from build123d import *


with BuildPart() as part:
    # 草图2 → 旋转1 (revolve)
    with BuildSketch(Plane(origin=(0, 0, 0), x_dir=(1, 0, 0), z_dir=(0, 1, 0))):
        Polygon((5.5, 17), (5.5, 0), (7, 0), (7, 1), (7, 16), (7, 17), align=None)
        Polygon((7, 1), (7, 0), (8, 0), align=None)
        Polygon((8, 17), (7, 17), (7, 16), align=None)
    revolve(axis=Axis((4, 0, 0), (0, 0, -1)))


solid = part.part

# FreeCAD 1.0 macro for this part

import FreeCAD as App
import Part
import Sketcher
Q = App.Units.Quantity

doc = App.newDocument("Part")
body = doc.addObject("PartDesign::Body", "Body")

# Sketch on XZ plane
sketch1 = doc.addObject("Sketcher::SketchObject", "Sketch")
body.addObject(sketch1)
sketch1.AttachmentSupport = (doc.XZ_Plane, [""])
sketch1.MapMode = "FlatFace"
sketch1.addGeometry([
    Part.LineSegment(App.Vector(5.5, -17, 0), App.Vector(5.5, 0, 0)),  # 0
    Part.LineSegment(App.Vector(5.5, 0, 0), App.Vector(8, 0, 0)),  # 1
    Part.LineSegment(App.Vector(8, 0, 0), App.Vector(7, -1, 0)),  # 2
    Part.LineSegment(App.Vector(7, -1, 0), App.Vector(7, -16, 0)),  # 3
    Part.LineSegment(App.Vector(7, -16, 0), App.Vector(8, -17, 0)),  # 4
    Part.LineSegment(App.Vector(8, -17, 0), App.Vector(5.5, -17, 0)),  # 5
], False)
sketch1.addGeometry(Part.LineSegment(App.Vector(4, 0, 0), App.Vector(4, -17, 0)), True)  # axis
sketch1.addConstraint([
    Sketcher.Constraint("Coincident", 0, 2, 1, 1),
    Sketcher.Constraint("Coincident", 1, 2, 2, 1),
    Sketcher.Constraint("Coincident", 2, 2, 3, 1),
    Sketcher.Constraint("Coincident", 3, 2, 4, 1),
    Sketcher.Constraint("Coincident", 4, 2, 5, 1),
    Sketcher.Constraint("Coincident", 5, 2, 0, 1),
    Sketcher.Constraint("Vertical", 0),
    Sketcher.Constraint("Horizontal", 1),
    Sketcher.Constraint("Vertical", 3),
    Sketcher.Constraint("Horizontal", 5),
    Sketcher.Constraint("Vertical", 6),
    Sketcher.Constraint("PointOnObject", 0, 2, -1),
    Sketcher.Constraint("PointOnObject", 6, 1, -1),
    Sketcher.Constraint("Perpendicular", 2, 4),
    Sketcher.Constraint("Horizontal", 5, 2, 6, 2),
    Sketcher.Constraint("Vertical", 1, 2, 4, 2),
    Sketcher.Constraint("Equal", 2, 4),
    Sketcher.Constraint("DistanceY", 0, 1, 0, 2, Q("17 mm")),
    Sketcher.Constraint("DistanceY", 3, 2, 3, 1, Q("15 mm")),
    Sketcher.Constraint("DistanceX", 1, 1, 1, 2, Q("2.5 mm")),
    Sketcher.Constraint("DistanceX", -1, 1, 1, 2, Q("8 mm")),
    Sketcher.Constraint("DistanceX", -1, 1, 6, 1, Q("4 mm")),
])
revolution = doc.addObject("PartDesign::Revolution", "Revolution")
body.addObject(revolution)
revolution.Profile = sketch1
revolution.ReferenceAxis = (sketch1, ["Axis0"])
revolution.Angle = 360

doc.recompute()
